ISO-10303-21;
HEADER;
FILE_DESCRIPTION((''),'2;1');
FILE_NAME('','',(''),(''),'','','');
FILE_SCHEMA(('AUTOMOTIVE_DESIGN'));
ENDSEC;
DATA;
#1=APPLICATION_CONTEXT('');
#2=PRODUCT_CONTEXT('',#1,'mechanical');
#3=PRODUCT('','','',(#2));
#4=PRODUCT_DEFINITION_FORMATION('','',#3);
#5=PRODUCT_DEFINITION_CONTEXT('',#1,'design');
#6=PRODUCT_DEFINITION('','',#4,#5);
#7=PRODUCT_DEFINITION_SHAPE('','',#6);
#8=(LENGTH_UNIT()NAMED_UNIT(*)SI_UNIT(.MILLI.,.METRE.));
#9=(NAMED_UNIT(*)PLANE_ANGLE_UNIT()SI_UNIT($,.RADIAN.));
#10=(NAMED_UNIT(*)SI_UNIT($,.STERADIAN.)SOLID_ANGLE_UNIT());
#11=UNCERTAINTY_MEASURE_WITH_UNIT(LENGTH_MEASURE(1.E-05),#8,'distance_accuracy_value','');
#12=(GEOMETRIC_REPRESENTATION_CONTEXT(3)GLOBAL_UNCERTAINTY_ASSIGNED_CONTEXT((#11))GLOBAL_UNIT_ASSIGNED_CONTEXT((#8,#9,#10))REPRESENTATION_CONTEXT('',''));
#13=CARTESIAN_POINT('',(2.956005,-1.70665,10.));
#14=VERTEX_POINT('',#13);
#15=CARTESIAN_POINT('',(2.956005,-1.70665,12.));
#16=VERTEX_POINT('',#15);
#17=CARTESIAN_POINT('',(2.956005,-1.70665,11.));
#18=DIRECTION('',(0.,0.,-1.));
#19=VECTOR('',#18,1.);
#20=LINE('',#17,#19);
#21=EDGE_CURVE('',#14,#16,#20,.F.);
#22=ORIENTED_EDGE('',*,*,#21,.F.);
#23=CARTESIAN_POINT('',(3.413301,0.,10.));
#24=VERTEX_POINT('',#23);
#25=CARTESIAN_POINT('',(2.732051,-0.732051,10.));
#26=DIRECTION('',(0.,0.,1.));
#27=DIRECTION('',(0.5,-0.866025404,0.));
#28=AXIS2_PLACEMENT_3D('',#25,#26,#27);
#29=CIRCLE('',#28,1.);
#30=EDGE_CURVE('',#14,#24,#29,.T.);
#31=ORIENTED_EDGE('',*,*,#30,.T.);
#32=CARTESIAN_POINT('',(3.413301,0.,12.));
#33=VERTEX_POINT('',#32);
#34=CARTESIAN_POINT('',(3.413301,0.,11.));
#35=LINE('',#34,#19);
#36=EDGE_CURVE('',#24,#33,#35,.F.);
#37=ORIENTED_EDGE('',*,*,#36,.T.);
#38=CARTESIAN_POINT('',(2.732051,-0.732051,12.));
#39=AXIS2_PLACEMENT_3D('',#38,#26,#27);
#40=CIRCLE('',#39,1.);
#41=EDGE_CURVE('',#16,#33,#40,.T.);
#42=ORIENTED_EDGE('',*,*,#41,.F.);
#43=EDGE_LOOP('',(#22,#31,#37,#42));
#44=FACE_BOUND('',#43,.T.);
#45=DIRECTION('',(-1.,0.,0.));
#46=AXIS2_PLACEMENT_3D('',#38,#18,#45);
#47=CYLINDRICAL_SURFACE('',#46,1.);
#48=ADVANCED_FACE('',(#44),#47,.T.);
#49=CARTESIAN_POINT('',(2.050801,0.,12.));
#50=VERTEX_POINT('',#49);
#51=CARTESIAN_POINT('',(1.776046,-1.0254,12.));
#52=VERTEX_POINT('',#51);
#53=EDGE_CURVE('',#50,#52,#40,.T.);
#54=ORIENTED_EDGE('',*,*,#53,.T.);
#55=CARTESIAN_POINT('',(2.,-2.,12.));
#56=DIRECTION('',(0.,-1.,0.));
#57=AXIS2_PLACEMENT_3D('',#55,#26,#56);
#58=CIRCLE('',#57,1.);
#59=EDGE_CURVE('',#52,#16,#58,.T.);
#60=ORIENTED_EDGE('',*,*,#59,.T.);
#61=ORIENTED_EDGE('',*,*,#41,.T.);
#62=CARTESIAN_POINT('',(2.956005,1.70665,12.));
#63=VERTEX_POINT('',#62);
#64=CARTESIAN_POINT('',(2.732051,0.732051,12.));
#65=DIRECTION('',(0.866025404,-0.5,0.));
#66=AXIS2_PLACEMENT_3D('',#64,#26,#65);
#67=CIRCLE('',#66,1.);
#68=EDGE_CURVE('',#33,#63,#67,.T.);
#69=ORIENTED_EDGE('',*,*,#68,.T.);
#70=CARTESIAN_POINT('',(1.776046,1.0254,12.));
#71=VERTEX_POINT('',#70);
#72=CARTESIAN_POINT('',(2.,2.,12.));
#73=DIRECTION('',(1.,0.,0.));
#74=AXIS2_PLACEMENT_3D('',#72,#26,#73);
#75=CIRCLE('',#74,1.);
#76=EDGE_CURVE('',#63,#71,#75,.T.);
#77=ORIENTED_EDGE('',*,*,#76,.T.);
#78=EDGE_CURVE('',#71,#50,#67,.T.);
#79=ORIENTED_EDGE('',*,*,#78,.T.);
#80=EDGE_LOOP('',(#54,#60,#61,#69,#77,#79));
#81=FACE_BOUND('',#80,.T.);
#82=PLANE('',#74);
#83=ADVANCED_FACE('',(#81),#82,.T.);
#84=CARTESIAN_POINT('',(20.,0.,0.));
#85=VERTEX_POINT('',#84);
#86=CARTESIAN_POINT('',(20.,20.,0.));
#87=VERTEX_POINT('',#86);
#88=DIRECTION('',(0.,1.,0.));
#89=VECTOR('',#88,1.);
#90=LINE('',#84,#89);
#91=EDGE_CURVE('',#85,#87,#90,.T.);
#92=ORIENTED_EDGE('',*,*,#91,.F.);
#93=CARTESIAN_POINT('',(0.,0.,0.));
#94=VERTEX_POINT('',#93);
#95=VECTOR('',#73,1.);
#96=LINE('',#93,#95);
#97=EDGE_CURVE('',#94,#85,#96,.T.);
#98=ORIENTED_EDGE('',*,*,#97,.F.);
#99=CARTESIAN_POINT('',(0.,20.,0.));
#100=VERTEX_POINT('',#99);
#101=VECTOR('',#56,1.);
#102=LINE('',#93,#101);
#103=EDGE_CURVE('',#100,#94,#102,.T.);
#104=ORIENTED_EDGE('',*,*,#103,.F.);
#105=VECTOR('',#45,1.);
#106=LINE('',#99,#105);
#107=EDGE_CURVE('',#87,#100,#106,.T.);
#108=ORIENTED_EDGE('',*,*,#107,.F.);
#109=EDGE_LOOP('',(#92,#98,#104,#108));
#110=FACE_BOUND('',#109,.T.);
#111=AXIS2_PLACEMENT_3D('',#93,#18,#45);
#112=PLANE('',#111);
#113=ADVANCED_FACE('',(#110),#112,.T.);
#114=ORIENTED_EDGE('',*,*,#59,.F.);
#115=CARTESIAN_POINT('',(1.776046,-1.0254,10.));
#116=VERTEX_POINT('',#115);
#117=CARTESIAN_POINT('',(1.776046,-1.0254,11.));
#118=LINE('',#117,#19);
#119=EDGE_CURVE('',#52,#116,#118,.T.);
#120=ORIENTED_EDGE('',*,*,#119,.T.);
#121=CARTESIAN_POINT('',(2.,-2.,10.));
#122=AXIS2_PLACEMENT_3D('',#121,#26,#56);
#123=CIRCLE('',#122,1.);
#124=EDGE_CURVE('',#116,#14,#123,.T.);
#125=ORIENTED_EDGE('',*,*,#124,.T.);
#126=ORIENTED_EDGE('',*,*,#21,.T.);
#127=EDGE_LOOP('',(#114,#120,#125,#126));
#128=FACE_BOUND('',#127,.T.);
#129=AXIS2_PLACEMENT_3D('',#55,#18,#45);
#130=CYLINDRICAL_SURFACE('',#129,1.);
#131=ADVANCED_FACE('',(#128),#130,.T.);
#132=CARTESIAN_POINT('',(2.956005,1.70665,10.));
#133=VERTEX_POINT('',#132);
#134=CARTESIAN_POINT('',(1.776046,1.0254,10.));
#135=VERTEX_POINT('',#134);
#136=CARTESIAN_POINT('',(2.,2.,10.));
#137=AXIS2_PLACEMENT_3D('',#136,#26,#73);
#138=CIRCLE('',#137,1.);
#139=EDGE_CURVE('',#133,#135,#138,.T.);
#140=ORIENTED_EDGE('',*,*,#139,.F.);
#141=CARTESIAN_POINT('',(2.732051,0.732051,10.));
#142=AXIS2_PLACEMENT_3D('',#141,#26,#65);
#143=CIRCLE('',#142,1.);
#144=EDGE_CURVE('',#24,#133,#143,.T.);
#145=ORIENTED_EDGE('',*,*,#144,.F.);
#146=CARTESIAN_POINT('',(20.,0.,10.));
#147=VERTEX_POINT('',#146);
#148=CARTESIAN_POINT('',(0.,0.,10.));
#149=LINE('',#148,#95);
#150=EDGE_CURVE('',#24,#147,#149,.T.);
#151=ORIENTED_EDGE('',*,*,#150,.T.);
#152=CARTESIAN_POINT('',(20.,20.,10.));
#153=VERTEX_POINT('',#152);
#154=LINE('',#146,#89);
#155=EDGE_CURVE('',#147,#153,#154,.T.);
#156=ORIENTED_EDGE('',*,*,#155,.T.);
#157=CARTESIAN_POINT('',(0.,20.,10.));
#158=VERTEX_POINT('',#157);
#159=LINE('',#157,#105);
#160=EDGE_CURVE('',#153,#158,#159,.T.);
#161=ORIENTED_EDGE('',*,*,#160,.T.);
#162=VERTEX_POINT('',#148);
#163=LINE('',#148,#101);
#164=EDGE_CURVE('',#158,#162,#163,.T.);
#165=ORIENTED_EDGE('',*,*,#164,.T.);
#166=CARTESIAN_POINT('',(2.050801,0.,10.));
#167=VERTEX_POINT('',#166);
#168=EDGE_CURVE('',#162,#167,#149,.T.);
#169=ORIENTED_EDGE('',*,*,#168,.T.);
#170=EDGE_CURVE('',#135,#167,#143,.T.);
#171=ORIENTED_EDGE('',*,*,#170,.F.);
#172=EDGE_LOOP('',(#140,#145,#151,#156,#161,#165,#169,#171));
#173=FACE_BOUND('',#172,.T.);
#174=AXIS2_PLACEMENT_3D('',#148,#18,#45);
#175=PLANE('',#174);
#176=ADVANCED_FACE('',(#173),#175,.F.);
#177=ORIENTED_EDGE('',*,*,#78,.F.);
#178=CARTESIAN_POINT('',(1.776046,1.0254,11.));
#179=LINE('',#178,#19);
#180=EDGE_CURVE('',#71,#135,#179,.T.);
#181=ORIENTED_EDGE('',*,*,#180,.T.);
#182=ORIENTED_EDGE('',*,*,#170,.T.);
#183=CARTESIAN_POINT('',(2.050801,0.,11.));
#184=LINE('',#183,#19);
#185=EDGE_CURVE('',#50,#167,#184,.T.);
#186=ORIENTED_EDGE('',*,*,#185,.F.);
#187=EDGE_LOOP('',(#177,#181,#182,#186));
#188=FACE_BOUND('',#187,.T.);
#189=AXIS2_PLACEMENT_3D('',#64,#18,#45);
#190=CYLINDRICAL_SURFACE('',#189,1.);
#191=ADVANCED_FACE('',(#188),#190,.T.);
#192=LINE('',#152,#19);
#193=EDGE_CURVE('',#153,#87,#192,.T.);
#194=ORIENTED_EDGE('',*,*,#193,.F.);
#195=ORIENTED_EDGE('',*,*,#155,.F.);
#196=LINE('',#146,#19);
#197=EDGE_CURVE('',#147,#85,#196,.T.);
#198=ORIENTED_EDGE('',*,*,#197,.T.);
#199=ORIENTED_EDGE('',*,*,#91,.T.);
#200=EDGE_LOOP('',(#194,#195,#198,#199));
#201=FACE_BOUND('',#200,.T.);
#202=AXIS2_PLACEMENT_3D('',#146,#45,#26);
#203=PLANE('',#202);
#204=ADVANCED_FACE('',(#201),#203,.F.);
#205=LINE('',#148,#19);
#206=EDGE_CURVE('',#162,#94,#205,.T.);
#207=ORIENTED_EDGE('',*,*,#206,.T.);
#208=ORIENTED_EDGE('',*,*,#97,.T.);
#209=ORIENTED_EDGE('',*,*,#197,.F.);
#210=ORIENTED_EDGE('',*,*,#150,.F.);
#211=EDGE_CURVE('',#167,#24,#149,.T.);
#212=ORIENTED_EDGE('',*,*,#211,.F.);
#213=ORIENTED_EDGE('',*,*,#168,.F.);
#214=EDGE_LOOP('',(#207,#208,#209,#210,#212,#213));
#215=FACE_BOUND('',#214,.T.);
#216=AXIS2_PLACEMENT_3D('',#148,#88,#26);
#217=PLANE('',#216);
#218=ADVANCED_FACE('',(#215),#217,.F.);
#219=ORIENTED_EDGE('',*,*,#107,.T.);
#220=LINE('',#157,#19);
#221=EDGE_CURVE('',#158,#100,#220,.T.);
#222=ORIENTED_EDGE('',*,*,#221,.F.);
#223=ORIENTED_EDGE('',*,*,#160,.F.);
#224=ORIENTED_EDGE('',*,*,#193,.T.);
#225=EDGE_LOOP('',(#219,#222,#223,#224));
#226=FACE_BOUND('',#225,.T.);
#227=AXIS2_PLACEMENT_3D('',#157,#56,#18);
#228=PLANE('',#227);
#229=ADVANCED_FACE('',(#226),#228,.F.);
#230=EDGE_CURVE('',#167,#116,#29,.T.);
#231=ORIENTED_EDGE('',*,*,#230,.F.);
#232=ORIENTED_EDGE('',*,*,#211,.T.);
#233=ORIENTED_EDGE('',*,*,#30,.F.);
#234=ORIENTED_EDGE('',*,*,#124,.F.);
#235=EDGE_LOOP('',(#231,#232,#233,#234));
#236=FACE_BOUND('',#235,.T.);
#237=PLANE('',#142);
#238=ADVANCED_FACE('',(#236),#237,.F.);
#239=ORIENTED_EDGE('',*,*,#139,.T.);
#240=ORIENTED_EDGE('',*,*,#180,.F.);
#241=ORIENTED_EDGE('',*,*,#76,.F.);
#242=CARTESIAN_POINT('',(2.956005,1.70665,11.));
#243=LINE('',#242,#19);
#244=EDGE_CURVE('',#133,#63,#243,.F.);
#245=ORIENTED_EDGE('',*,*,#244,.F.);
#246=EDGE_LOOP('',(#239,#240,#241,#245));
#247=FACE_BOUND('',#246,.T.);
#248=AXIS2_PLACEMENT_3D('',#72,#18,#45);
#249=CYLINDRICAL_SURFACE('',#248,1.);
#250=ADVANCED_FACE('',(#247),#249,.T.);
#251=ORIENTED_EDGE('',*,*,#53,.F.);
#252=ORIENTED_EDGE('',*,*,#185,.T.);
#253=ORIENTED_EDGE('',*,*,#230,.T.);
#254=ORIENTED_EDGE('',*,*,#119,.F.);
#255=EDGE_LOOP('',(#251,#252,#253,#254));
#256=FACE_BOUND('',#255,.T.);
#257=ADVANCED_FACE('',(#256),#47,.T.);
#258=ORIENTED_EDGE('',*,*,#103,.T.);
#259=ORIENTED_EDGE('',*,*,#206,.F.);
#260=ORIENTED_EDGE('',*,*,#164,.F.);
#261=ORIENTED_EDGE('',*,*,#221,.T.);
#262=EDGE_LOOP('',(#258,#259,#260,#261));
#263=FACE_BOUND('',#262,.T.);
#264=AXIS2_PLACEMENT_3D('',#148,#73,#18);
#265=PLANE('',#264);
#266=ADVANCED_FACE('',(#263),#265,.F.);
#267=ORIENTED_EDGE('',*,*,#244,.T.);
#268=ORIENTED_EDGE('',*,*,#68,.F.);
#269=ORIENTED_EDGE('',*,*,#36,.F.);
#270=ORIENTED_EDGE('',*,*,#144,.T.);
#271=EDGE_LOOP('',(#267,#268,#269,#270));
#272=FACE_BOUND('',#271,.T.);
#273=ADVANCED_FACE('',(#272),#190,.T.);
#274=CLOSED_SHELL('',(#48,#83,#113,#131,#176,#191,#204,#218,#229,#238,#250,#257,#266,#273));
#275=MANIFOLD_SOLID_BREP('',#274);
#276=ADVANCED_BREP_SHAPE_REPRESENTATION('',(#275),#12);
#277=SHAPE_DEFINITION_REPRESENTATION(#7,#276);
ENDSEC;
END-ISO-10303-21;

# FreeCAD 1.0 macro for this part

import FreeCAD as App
import Part
import Sketcher

V = App.Vector
Q = App.Units.Quantity

doc = App.newDocument("Part")
body = doc.addObject("PartDesign::Body", "Body")

sketch1 = body.newObject("Sketcher::SketchObject", "Sketch")
sketch1.AttachmentSupport = (doc.getObject("XY_Plane"), [""])
sketch1.MapMode = "FlatFace"
sketch1.addGeometry([
    Part.LineSegment(V(0, 20, 0), V(0, 0, 0)),
    Part.LineSegment(V(0, 0, 0), V(20, 0, 0)),
    Part.LineSegment(V(20, 0, 0), V(20, 20, 0)),
    Part.LineSegment(V(20, 20, 0), V(0, 20, 0)),
], False)
sketch1.addConstraint([
    Sketcher.Constraint("Coincident", 0, 2, 1, 1),
    Sketcher.Constraint("Coincident", 1, 2, 2, 1),
    Sketcher.Constraint("Coincident", 2, 2, 3, 1),
    Sketcher.Constraint("Coincident", 3, 2, 0, 1),
    Sketcher.Constraint("Vertical", 0),
    Sketcher.Constraint("Horizontal", 1),
    Sketcher.Constraint("Vertical", 2),
    Sketcher.Constraint("Horizontal", 3),
    Sketcher.Constraint("Coincident", 0, 2, -1, 1),
    Sketcher.Constraint("Equal", 3, 0),
    Sketcher.Constraint("DistanceX", 1, 1, 1, 2, Q("20 mm")),
])
pad1 = body.newObject("PartDesign::Pad", "Pad")
pad1.Profile = sketch1
pad1.Length = 10

sketch2 = body.newObject("Sketcher::SketchObject", "Sketch001")
sketch2.AttachmentSupport = (doc.getObject("XY_Plane"), [""])
sketch2.MapMode = "FlatFace"
sketch2.AttachmentOffset = App.Placement(V(0, 0, 10), App.Rotation())
sketch2.addGeometry(Part.Circle(V(2, 2, 0), V(0, 0, 1), 1), False)
sketch2.addConstraint([
    Sketcher.Constraint("Diameter", 0, Q("2 mm")),
    Sketcher.Constraint("DistanceX", -1, 1, 0, 3, Q("2 mm")),
    Sketcher.Constraint("DistanceY", -1, 1, 0, 3, Q("2 mm")),
])
pad2 = body.newObject("PartDesign::Pad", "Pad001")
pad2.Profile = sketch2
pad2.Length = 2
doc.recompute()

polarpattern = body.newObject("PartDesign::PolarPattern", "PolarPattern")
polarpattern.Originals = [pad2]
polarpattern.Axis = (doc.getObject("Z_Axis"), [""])
polarpattern.Angle = 90
polarpattern.Occurrences = 4
polarpattern.Reversed = True
body.Tip = polarpattern

doc.recompute()
